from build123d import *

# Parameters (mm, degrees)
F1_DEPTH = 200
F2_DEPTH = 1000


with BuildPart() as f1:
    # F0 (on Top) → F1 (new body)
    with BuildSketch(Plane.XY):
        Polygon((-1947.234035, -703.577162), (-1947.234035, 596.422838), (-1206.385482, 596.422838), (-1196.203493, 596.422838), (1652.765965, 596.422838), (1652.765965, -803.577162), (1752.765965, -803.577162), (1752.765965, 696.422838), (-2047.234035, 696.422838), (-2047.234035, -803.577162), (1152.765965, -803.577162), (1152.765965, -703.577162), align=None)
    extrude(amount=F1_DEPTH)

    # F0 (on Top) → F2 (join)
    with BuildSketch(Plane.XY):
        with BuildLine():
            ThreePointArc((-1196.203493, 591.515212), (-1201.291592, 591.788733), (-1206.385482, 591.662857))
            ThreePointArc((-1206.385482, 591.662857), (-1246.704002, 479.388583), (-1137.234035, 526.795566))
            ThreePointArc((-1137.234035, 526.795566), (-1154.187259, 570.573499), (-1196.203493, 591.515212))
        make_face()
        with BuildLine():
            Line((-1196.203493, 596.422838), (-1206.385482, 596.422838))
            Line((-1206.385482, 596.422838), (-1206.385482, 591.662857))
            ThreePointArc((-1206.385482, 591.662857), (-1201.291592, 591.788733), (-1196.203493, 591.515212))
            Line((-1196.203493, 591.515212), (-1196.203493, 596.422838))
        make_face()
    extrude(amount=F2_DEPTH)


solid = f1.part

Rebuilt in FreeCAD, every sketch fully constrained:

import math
import FreeCAD as App
import Part
import Sketcher


def add_polygon(sketch, points):
    """Adds a closed chain of lines whose ends are joined by coincident constraints."""
    first, n = sketch.GeometryCount, len(points)
    for a, b in zip(points, points[1:] + points[:1]):
        sketch.addGeometry(Part.LineSegment(App.Vector(*a, 0), App.Vector(*b, 0)), False)
    for i in range(n):
        sketch.addConstraint(Sketcher.Constraint("Coincident", first + i, 2, first + (i + 1) % n, 1))

doc = App.newDocument("Part")
params = doc.addObject("Spreadsheet::Sheet", "Params")
for row, (alias, value) in enumerate([
    ("sketch1_width", "3600 mm"),
    ("sketch1_width2", "100 mm"),
    ("sketch1_width3", "3800 mm"),
    ("sketch1_width4", "3200 mm"),
    ("sketch1_height", "1300 mm"),
    ("pad1_length", "200 mm"),
    ("sketch2_radius", "65 mm"),
    ("pad2_length", "1000 mm"),
], start=1):
    params.set(f"A{row}", alias)
    params.set(f"B{row}", "=" + value)
    params.setAlias(f"B{row}", alias)

body = doc.addObject("PartDesign::Body", "Body")

sketch1 = body.newObject("Sketcher::SketchObject", "Sketch")
sketch1.AttachmentSupport = (doc.getObject("XY_Plane"), [""])
sketch1.MapMode = "FlatFace"
add_polygon(sketch1, [(-1947.234035, -703.577162), (-1947.234035, 596.422838), (1652.765965, 596.422838), (1652.765965, -803.577162), (1752.765965, -803.577162), (1752.765965, 696.422838), (-2047.234035, 696.422838), (-2047.234035, -803.577162), (1152.765965, -803.577162), (1152.765965, -703.577162)])
sketch1.addConstraint([
    Sketcher.Constraint("Vertical", 0),
    Sketcher.Constraint("Horizontal", 1),
    Sketcher.Constraint("Vertical", 2),
    Sketcher.Constraint("Horizontal", 3),
    Sketcher.Constraint("Vertical", 4),
    Sketcher.Constraint("Horizontal", 5),
    Sketcher.Constraint("Vertical", 6),
    Sketcher.Constraint("Horizontal", 7),
    Sketcher.Constraint("Vertical", 8),
    Sketcher.Constraint("Horizontal", 9),
    Sketcher.Constraint("Horizontal", 3, 2, 6, 2),
    Sketcher.Constraint("Equal", 3, 8),
    Sketcher.Constraint("DistanceX", 1, 1, 1, 2, 3600.0),
    Sketcher.Constraint("DistanceX", 3, 1, 3, 2, 100.0),
    Sketcher.Constraint("DistanceX", 5, 2, 5, 1, 3800.0),
    Sketcher.Constraint("DistanceX", 7, 1, 7, 2, 3200.0),
    Sketcher.Constraint("DistanceY", 0, 1, 0, 2, 1300.0),
    Sketcher.Constraint("DistanceY", 4, 1, 4, 2, 1500.0),
    Sketcher.Constraint("DistanceY", -1, 1, 0, 2, 596.422838),
    Sketcher.Constraint("DistanceX", 0, 2, -1, 1, 1947.234035),
])
sketch1.setExpression("Constraints[22]", "Params.sketch1_width")
sketch1.setExpression("Constraints[23]", "Params.sketch1_width2")
sketch1.setExpression("Constraints[24]", "Params.sketch1_width3")
sketch1.setExpression("Constraints[25]", "Params.sketch1_width4")
sketch1.setExpression("Constraints[26]", "Params.sketch1_height")
pad1 = body.newObject("PartDesign::Pad", "Pad")
pad1.Profile = sketch1
pad1.setExpression("Length", "Params.pad1_length")

sketch2 = body.newObject("Sketcher::SketchObject", "Sketch001")
sketch2.AttachmentSupport = (doc.getObject("XY_Plane"), [""])
sketch2.MapMode = "FlatFace"
sketch2.addGeometry([
    Part.ArcOfCircle(Part.Circle(App.Vector(-1202.234035, 526.795566, 0), App.Vector(0, 0, 1), 65), math.radians(93.661883), math.radians(360)),
    Part.ArcOfCircle(Part.Circle(App.Vector(-1202.234033, 526.795568, 0), App.Vector(0, 0, 1), 64.999998), math.radians(-0.000002), math.radians(84.676583)),
    Part.LineSegment(App.Vector(-1196.203493, 591.515212, 0), App.Vector(-1196.203493, 596.422838, 0)),
    Part.LineSegment(App.Vector(-1196.203493, 596.422838, 0), App.Vector(-1206.385482, 596.422838, 0)),
    Part.LineSegment(App.Vector(-1206.385482, 596.422838, 0), App.Vector(-1206.385482, 591.662857, 0)),
], False)
sketch2.addConstraint([
    Sketcher.Constraint("Tangent", 0, 2, 1, 1),
    Sketcher.Constraint("Coincident", 1, 2, 2, 1),
    Sketcher.Constraint("Coincident", 2, 2, 3, 1),
    Sketcher.Constraint("Coincident", 3, 2, 4, 1),
    Sketcher.Constraint("Coincident", 4, 2, 0, 1),
    Sketcher.Constraint("Vertical", 2),
    Sketcher.Constraint("Horizontal", 3),
    Sketcher.Constraint("Vertical", 4),
    Sketcher.Constraint("Equal", 0, 1),
    Sketcher.Constraint("Horizontal", 1, 3, 0, 2),
    Sketcher.Constraint("Radius", 0, 65.0),
    Sketcher.Constraint("DistanceX", 3, 2, 3, 1, 10.181989),
    Sketcher.Constraint("DistanceY", 4, 2, 4, 1, 4.759981),
    Sketcher.Constraint("DistanceY", 2, 1, 2, 2, 4.907626),
    Sketcher.Constraint("DistanceY", -1, 1, 1, 2, 591.515212),
    Sketcher.Constraint("DistanceX", 3, 2, -1, 1, 1206.385482),
])
sketch2.setExpression("Constraints[10]", "Params.sketch2_radius")
pad2 = body.newObject("PartDesign::Pad", "Pad001")
pad2.Profile = sketch2
pad2.setExpression("Length", "Params.pad2_length")

doc.recompute()
